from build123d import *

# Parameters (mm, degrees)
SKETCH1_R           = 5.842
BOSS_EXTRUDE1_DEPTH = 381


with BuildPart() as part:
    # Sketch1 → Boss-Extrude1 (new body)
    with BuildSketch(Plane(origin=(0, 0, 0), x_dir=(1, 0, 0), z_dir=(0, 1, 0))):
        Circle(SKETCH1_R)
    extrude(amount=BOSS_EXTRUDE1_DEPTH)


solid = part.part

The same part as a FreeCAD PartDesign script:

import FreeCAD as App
import Part
import Sketcher

V = App.Vector
Q = App.Units.Quantity

doc = App.newDocument("Part")
body = doc.addObject("PartDesign::Body", "Body")

sketch1 = body.newObject("Sketcher::SketchObject", "Sketch")
sketch1.AttachmentSupport = (doc.getObject("XZ_Plane"), [""])
sketch1.MapMode = "FlatFace"
sketch1.addGeometry(Part.Circle(V(0, 0, 0), V(0, 0, 1), 6), False)
sketch1.addConstraint([
    Sketcher.Constraint("Coincident", 0, 3, -1, 1),
    Sketcher.Constraint("Diameter", 0, Q("0.46 in")),
])
pad1 = body.newObject("PartDesign::Pad", "Pad")
pad1.Profile = sketch1
pad1.Length = Q("15 in")
pad1.Reversed = True

doc.recompute()
